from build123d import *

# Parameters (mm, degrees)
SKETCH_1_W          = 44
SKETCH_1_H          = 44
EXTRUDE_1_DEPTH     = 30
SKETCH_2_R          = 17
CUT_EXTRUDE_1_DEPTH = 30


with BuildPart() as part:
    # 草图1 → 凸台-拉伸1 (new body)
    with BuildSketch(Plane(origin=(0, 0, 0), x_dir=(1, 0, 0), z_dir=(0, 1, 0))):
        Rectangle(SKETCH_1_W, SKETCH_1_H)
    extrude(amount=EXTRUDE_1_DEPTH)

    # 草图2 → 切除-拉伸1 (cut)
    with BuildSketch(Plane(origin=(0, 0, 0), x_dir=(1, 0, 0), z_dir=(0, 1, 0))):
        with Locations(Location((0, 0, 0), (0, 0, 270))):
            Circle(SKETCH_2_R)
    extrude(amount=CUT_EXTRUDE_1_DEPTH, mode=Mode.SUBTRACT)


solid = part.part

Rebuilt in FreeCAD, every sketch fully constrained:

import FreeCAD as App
import Part
import Sketcher

doc = App.newDocument("Part")
body = doc.addObject("PartDesign::Body", "Body")

sketch1 = doc.addObject("Sketcher::SketchObject", "Sketch")
body.addObject(sketch1)
sketch1.AttachmentSupport = (doc.XZ_Plane, [""])
sketch1.MapMode = "FlatFace"
sketch1.addGeometry([
    Part.LineSegment(App.Vector(-22, -22, 0), App.Vector(-22, 22, 0)),
    Part.LineSegment(App.Vector(-22, 22, 0), App.Vector(22, 22, 0)),
    Part.LineSegment(App.Vector(22, 22, 0), App.Vector(22, -22, 0)),
    Part.LineSegment(App.Vector(22, -22, 0), App.Vector(-22, -22, 0)),
], False)
sketch1.addConstraint([
    Sketcher.Constraint("Coincident", 0, 2, 1, 1),
    Sketcher.Constraint("Coincident", 1, 2, 2, 1),
    Sketcher.Constraint("Coincident", 2, 2, 3, 1),
    Sketcher.Constraint("Coincident", 3, 2, 0, 1),
    Sketcher.Constraint("Vertical", 0),
    Sketcher.Constraint("Horizontal", 1),
    Sketcher.Constraint("Vertical", 2),
    Sketcher.Constraint("Horizontal", 3),
    Sketcher.Constraint("Symmetric", 0, 2, 2, 2, -1, 1),
    Sketcher.Constraint("Equal", 3, 0),
    Sketcher.Constraint("DistanceX", 1, 1, 1, 2, 44.0),
])
pad1 = doc.addObject("PartDesign::Pad", "Pad")
body.addObject(pad1)
pad1.Profile = sketch1
pad1.Length = 30
pad1.Reversed = True

sketch2 = doc.addObject("Sketcher::SketchObject", "Sketch001")
body.addObject(sketch2)
sketch2.AttachmentSupport = (doc.XZ_Plane, [""])
sketch2.MapMode = "FlatFace"
sketch2.addGeometry(Part.Circle(App.Vector(0, 0, 0), App.Vector(0, 0, 1), 17), False)
sketch2.addConstraint([
    Sketcher.Constraint("Coincident", 0, 3, -1, 1),
    Sketcher.Constraint("Diameter", 0, 34.0),
])
pocket1 = doc.addObject("PartDesign::Pocket", "Pocket")
body.addObject(pocket1)
pocket1.Profile = sketch2
pocket1.Length = 30

doc.recompute()
